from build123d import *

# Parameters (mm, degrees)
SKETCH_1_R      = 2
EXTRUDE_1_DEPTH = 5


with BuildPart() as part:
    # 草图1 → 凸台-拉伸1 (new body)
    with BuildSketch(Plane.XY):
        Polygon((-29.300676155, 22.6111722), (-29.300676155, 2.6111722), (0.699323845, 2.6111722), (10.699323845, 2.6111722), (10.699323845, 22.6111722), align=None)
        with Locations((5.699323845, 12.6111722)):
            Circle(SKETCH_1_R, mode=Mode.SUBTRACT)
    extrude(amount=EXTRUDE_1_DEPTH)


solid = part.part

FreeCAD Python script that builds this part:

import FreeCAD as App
import Part
import Sketcher


def add_polygon(sketch, points):
    """Adds a closed chain of lines whose ends are joined by coincident constraints."""
    first, n = sketch.GeometryCount, len(points)
    for a, b in zip(points, points[1:] + points[:1]):
        sketch.addGeometry(Part.LineSegment(App.Vector(*a, 0), App.Vector(*b, 0)), False)
    for i in range(n):
        sketch.addConstraint(Sketcher.Constraint("Coincident", first + i, 2, first + (i + 1) % n, 1))

doc = App.newDocument("Part")
params = doc.addObject("Spreadsheet::Sheet", "Params")
for row, (alias, value) in enumerate([
    ("sketch1_diameter", "4 mm"),
    ("sketch1_width", "40 mm"),
    ("sketch1_height", "20 mm"),
    ("pad1_length", "5 mm"),
], start=1):
    params.set(f"A{row}", alias)
    params.set(f"B{row}", "=" + value)
    params.setAlias(f"B{row}", alias)

body = doc.addObject("PartDesign::Body", "Body")

# Sketch on XY plane
sketch1 = body.newObject("Sketcher::SketchObject", "Sketch")
sketch1.AttachmentSupport = (doc.getObject("XY_Plane"), [""])
sketch1.MapMode = "FlatFace"
add_polygon(sketch1, [(-29.3, 22.6), (-29.3, 2.6), (10.7, 2.6), (10.7, 22.6)])  # lines 0-3
sketch1.addGeometry(Part.Circle(App.Vector(5.7, 12.6, 0), App.Vector(0, 0, 1), 2), False)  # 4
sketch1.addConstraint(Sketcher.Constraint("Vertical", 0))
sketch1.addConstraint(Sketcher.Constraint("Horizontal", 1))
sketch1.addConstraint(Sketcher.Constraint("Vertical", 2))
sketch1.addConstraint(Sketcher.Constraint("Horizontal", 3))
sketch1.addConstraint(Sketcher.Constraint("Diameter", 4, 4.0))
sketch1.addConstraint(Sketcher.Constraint("DistanceX", 1, 1, 1, 2, 40.0))
sketch1.addConstraint(Sketcher.Constraint("DistanceY", 0, 2, 0, 1, 20.0))
sketch1.addConstraint(Sketcher.Constraint("DistanceX", 0, 2, 4, 3, 35.0))
sketch1.addConstraint(Sketcher.Constraint("DistanceY", 0, 2, 4, 3, 10.0))
sketch1.addConstraint(Sketcher.Constraint("DistanceX", -1, 1, 4, 3, 5.699324))
sketch1.addConstraint(Sketcher.Constraint("DistanceY", -1, 1, 4, 3, 12.611172))
sketch1.setExpression("Constraints[8]", "Params.sketch1_diameter")
sketch1.setExpression("Constraints[9]", "Params.sketch1_width")
sketch1.setExpression("Constraints[10]", "Params.sketch1_height")
pad1 = body.newObject("PartDesign::Pad", "Pad")
pad1.Profile = sketch1
pad1.setExpression("Length", "Params.pad1_length")

doc.recompute()
